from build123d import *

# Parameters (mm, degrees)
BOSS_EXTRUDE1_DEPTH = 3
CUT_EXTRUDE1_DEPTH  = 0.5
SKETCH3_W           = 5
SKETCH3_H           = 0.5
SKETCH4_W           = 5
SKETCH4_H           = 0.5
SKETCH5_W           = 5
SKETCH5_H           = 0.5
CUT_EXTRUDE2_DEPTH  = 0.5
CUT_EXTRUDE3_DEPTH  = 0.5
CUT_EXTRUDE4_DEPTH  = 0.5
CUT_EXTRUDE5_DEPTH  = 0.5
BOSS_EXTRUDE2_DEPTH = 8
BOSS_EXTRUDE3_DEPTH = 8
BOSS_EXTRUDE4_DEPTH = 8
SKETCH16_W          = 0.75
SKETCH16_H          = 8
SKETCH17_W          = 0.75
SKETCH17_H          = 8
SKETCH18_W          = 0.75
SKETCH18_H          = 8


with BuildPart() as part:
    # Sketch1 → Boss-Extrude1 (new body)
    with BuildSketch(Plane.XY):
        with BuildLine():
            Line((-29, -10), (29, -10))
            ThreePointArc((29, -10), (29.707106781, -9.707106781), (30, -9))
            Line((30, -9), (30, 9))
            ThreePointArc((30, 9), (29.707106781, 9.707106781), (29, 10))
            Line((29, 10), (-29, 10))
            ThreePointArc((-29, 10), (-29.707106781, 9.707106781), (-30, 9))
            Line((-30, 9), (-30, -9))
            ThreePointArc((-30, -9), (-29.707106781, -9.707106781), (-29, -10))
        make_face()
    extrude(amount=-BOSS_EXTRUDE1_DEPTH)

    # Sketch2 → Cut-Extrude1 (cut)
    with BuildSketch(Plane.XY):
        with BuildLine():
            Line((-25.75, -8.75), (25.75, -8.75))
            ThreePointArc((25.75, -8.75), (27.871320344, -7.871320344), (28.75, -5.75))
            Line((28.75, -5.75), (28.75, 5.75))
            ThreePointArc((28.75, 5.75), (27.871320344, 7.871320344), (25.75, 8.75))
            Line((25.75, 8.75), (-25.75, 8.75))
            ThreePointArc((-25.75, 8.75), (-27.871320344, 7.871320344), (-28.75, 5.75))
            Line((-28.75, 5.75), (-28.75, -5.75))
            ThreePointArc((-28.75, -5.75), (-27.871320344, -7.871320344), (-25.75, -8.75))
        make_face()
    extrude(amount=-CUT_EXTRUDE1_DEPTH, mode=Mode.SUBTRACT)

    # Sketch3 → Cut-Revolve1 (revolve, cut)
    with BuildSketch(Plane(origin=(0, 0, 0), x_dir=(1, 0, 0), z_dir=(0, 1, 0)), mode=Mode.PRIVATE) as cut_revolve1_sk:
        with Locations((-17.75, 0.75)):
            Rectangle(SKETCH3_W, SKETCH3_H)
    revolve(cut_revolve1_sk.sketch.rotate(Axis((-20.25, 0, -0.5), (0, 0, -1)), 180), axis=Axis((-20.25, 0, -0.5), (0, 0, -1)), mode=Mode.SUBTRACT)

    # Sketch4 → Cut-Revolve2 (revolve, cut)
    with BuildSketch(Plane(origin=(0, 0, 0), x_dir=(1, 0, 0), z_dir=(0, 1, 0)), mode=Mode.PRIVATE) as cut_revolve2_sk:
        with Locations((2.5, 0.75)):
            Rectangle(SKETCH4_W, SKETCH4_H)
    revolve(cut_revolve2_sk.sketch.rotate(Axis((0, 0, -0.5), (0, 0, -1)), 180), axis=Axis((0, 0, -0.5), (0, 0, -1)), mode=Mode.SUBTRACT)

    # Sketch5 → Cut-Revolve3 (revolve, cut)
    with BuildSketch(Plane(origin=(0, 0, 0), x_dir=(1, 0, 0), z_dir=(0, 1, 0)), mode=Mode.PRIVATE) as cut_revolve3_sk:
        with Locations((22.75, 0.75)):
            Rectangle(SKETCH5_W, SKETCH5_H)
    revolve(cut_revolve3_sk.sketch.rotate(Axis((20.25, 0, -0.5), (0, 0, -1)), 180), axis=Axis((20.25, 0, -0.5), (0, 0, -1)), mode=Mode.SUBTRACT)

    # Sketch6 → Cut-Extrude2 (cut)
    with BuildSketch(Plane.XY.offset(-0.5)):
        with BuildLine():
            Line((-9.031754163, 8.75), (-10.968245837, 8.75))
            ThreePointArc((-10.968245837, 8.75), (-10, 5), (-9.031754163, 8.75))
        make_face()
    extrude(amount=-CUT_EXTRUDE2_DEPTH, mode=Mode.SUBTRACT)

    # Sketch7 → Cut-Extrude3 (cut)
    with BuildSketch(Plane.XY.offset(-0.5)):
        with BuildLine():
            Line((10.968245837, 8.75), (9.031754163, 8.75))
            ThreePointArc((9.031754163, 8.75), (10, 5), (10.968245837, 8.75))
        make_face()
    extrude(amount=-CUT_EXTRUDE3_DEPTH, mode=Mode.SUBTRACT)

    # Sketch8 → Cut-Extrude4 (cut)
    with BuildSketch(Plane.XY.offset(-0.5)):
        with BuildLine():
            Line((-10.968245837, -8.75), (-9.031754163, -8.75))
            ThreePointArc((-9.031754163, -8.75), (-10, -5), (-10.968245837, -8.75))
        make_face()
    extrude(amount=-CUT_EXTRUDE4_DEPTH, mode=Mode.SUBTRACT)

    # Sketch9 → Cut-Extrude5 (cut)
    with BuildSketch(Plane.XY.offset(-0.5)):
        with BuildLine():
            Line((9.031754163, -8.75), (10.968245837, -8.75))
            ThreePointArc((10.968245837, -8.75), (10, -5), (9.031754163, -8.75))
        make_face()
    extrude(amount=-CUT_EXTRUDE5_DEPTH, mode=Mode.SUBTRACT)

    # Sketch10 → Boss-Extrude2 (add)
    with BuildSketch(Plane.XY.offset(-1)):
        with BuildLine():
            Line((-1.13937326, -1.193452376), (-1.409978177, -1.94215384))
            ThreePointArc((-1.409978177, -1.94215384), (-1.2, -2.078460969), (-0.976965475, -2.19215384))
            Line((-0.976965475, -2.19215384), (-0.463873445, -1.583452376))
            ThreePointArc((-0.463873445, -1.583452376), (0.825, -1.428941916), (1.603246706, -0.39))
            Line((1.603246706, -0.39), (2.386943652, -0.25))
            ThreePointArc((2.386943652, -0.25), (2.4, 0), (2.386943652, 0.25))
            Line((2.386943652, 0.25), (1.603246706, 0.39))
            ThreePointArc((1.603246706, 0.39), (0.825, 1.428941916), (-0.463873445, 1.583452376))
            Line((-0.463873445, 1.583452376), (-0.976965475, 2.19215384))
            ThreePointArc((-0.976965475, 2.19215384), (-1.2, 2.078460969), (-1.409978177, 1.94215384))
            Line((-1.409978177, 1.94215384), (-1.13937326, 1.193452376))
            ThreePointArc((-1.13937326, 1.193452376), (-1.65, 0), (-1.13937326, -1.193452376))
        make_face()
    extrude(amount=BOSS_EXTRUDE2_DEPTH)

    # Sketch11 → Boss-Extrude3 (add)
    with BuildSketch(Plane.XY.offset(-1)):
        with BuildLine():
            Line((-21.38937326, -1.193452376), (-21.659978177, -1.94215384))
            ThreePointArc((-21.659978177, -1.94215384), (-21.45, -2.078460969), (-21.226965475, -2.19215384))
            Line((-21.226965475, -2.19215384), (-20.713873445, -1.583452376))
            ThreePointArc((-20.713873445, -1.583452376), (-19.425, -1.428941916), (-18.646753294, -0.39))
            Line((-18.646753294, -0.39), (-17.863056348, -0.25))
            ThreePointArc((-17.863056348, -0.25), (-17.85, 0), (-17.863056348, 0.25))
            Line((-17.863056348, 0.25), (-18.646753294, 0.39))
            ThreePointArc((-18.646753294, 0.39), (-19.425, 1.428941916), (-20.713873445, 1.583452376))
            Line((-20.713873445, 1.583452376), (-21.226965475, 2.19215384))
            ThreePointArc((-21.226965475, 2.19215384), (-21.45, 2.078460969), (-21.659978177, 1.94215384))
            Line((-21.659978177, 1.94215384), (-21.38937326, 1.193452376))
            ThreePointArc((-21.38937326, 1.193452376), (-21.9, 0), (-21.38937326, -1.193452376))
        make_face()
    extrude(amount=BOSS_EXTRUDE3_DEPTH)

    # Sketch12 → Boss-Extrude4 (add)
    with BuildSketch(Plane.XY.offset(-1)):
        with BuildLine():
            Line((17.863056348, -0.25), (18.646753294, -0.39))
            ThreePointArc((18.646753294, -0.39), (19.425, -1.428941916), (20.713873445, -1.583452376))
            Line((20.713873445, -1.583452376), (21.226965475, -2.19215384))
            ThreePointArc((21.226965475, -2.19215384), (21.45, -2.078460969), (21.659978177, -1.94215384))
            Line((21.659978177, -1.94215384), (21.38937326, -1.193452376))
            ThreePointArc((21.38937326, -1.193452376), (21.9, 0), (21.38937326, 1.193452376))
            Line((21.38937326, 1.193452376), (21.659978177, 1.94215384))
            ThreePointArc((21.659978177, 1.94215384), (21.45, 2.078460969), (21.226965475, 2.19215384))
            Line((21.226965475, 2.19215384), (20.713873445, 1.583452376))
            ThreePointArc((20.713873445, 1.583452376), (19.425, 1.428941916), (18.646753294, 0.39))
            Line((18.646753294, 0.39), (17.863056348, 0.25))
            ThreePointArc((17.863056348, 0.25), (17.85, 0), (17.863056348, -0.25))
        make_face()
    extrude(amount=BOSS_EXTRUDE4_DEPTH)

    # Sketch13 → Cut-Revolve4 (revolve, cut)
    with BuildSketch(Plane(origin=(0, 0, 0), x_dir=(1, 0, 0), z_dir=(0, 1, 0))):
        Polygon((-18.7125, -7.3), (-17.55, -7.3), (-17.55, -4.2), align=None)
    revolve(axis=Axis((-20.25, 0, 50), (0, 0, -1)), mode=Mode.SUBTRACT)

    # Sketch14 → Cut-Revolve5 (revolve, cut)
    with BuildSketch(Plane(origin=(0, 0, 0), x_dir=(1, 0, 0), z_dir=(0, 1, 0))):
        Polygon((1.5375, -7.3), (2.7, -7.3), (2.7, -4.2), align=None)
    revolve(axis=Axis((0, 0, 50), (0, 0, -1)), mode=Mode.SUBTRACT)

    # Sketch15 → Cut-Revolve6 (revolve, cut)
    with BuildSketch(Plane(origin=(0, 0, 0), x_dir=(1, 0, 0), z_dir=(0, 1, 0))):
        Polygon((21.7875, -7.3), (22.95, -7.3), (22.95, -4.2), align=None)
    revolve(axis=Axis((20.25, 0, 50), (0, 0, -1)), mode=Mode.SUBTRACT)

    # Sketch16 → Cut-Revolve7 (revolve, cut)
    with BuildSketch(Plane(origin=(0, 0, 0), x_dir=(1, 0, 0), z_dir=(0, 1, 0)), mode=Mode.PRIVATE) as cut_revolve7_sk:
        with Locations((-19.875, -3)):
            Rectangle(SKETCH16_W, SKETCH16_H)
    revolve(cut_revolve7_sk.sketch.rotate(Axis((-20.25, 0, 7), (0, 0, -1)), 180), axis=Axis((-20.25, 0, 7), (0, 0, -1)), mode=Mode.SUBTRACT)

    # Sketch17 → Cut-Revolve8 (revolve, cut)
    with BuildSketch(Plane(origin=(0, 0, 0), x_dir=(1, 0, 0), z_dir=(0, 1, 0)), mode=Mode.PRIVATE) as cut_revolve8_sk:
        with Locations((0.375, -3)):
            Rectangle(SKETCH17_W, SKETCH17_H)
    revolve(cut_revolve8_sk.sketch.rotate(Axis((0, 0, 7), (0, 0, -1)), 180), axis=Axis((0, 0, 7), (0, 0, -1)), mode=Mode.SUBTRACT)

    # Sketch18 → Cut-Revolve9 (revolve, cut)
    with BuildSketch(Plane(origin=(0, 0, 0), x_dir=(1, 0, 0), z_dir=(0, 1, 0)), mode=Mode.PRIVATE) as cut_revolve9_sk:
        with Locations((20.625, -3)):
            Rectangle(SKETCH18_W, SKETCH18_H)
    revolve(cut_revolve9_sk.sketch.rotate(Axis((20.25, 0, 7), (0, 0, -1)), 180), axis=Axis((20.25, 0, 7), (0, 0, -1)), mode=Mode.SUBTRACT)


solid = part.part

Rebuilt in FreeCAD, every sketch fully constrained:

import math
import FreeCAD as App
import Part
import Sketcher


def add_polygon(sketch, points):
    """Adds a closed chain of lines whose ends are joined by coincident constraints."""
    first, n = sketch.GeometryCount, len(points)
    for a, b in zip(points, points[1:] + points[:1]):
        sketch.addGeometry(Part.LineSegment(App.Vector(*a, 0), App.Vector(*b, 0)), False)
    for i in range(n):
        sketch.addConstraint(Sketcher.Constraint("Coincident", first + i, 2, first + (i + 1) % n, 1))

doc = App.newDocument("Part")
params = doc.addObject("Spreadsheet::Sheet", "Params")
for row, (alias, value) in enumerate([
    ("sketch1_radius", "1 mm"),
    ("sketch1_width", "58 mm"),
    ("sketch1_height", "18 mm"),
    ("pad1_length", "3 mm"),
    ("sketch2_radius", "3 mm"),
    ("sketch2_width", "51.5 mm"),
    ("sketch2_height", "11.5 mm"),
    ("pocket1_length", "0.5 mm"),
    ("sketch3_width", "5 mm"),
    ("sketch3_height", "0.5 mm"),
    ("groove_angle", "360 deg"),
    ("sketch4_width", "5 mm"),
    ("sketch4_height", "0.5 mm"),
    ("groove2_angle", "360 deg"),
    ("sketch5_width", "5 mm"),
    ("sketch5_height", "0.5 mm"),
    ("groove3_angle", "360 deg"),
    ("sketch6_radius", "2 mm"),
    ("pocket2_length", "0.5 mm"),
    ("sketch7_radius", "2 mm"),
    ("pocket3_length", "0.5 mm"),
    ("sketch8_radius", "2 mm"),
    ("pocket4_length", "0.5 mm"),
    ("sketch9_radius", "2 mm"),
    ("pocket5_length", "0.5 mm"),
    ("sketch10_radius", "2.4 mm"),
    ("sketch10_radius2", "1.65 mm"),
    ("pad2_length", "8 mm"),
    ("sketch11_radius", "2.4 mm"),
    ("sketch11_radius2", "1.65 mm"),
    ("pad3_length", "8 mm"),
    ("sketch12_radius", "2.4 mm"),
    ("sketch12_radius2", "1.65 mm"),
    ("pad4_length", "8 mm"),
    ("sketch13_height", "3.1 mm"),
    ("groove4_angle", "360 deg"),
    ("sketch14_height", "3.1 mm"),
    ("groove5_angle", "360 deg"),
    ("sketch15_height", "3.1 mm"),
    ("groove6_angle", "360 deg"),
    ("sketch16_height", "8 mm"),
    ("sketch16_width", "0.75 mm"),
    ("groove7_angle", "360 deg"),
    ("sketch17_height", "8 mm"),
    ("sketch17_width", "0.75 mm"),
    ("groove8_angle", "360 deg"),
    ("sketch18_height", "8 mm"),
    ("sketch18_width", "0.75 mm"),
    ("groove9_angle", "360 deg"),
], start=1):
    params.set(f"A{row}", alias)
    params.set(f"B{row}", "=" + value)
    params.setAlias(f"B{row}", alias)

body = doc.addObject("PartDesign::Body", "Body")

# Sketch on XY plane
sketch1 = body.newObject("Sketcher::SketchObject", "Sketch")
sketch1.AttachmentSupport = (doc.getObject("XY_Plane"), [""])
sketch1.MapMode = "FlatFace"
sketch1.addGeometry([
    Part.LineSegment(App.Vector(-29, -10, 0), App.Vector(29, -10, 0)),  # 0
    Part.ArcOfCircle(Part.Circle(App.Vector(29, -9, 0), App.Vector(0, 0, 1), 1), math.radians(-90), math.radians(0)),  # 1
    Part.LineSegment(App.Vector(30, -9, 0), App.Vector(30, 9, 0)),  # 2
    Part.ArcOfCircle(Part.Circle(App.Vector(29, 9, 0), App.Vector(0, 0, 1), 1), math.radians(0), math.radians(90)),  # 3
    Part.LineSegment(App.Vector(29, 10, 0), App.Vector(-29, 10, 0)),  # 4
    Part.ArcOfCircle(Part.Circle(App.Vector(-29, 9, 0), App.Vector(0, 0, 1), 1), math.radians(90), math.radians(180)),  # 5
    Part.LineSegment(App.Vector(-30, 9, 0), App.Vector(-30, -9, 0)),  # 6
    Part.ArcOfCircle(Part.Circle(App.Vector(-29, -9, 0), App.Vector(0, 0, 1), 1), math.radians(-180), math.radians(-90)),  # 7
], False)
sketch1.addConstraint([
    Sketcher.Constraint("Tangent", 0, 2, 1, 1),
    Sketcher.Constraint("Tangent", 1, 2, 2, 1),
    Sketcher.Constraint("Tangent", 2, 2, 3, 1),
    Sketcher.Constraint("Tangent", 3, 2, 4, 1),
    Sketcher.Constraint("Tangent", 4, 2, 5, 1),
    Sketcher.Constraint("Tangent", 5, 2, 6, 1),
    Sketcher.Constraint("Tangent", 6, 2, 7, 1),
    Sketcher.Constraint("Tangent", 7, 2, 0, 1),
    Sketcher.Constraint("Horizontal", 0),
    Sketcher.Constraint("Vertical", 2),
    Sketcher.Constraint("Horizontal", 4),
    Sketcher.Constraint("Vertical", 6),
    Sketcher.Constraint("Equal", 1, 3),
    Sketcher.Constraint("Equal", 3, 5),
    Sketcher.Constraint("Equal", 5, 7),
    Sketcher.Constraint("Symmetric", 1, 3, 5, 3, -1, 1),
    Sketcher.Constraint("Radius", 1, 1.0),
    Sketcher.Constraint("DistanceX", 0, 1, 0, 2, 58.0),
    Sketcher.Constraint("DistanceY", 2, 1, 2, 2, 18.0),
])
sketch1.setExpression("Constraints[16]", "Params.sketch1_radius")
sketch1.setExpression("Constraints[17]", "Params.sketch1_width")
sketch1.setExpression("Constraints[18]", "Params.sketch1_height")
pad1 = body.newObject("PartDesign::Pad", "Pad")
pad1.Profile = sketch1
pad1.setExpression("Length", "Params.pad1_length")
pad1.Reversed = True

# Sketch on XY plane
sketch2 = body.newObject("Sketcher::SketchObject", "Sketch001")
sketch2.AttachmentSupport = (doc.getObject("XY_Plane"), [""])
sketch2.MapMode = "FlatFace"
sketch2.addGeometry([
    Part.LineSegment(App.Vector(-25.75, -8.75, 0), App.Vector(25.75, -8.75, 0)),  # 0
    Part.ArcOfCircle(Part.Circle(App.Vector(25.75, -5.75, 0), App.Vector(0, 0, 1), 3), math.radians(-90), math.radians(0)),  # 1
    Part.LineSegment(App.Vector(28.75, -5.75, 0), App.Vector(28.75, 5.75, 0)),  # 2
    Part.ArcOfCircle(Part.Circle(App.Vector(25.75, 5.75, 0), App.Vector(0, 0, 1), 3), math.radians(0), math.radians(90)),  # 3
    Part.LineSegment(App.Vector(25.75, 8.75, 0), App.Vector(-25.75, 8.75, 0)),  # 4
    Part.ArcOfCircle(Part.Circle(App.Vector(-25.75, 5.75, 0), App.Vector(0, 0, 1), 3), math.radians(90), math.radians(180)),  # 5
    Part.LineSegment(App.Vector(-28.75, 5.75, 0), App.Vector(-28.75, -5.75, 0)),  # 6
    Part.ArcOfCircle(Part.Circle(App.Vector(-25.75, -5.75, 0), App.Vector(0, 0, 1), 3), math.radians(180), math.radians(270)),  # 7
], False)
sketch2.addConstraint([
    Sketcher.Constraint("Tangent", 0, 2, 1, 1),
    Sketcher.Constraint("Tangent", 1, 2, 2, 1),
    Sketcher.Constraint("Tangent", 2, 2, 3, 1),
    Sketcher.Constraint("Tangent", 3, 2, 4, 1),
    Sketcher.Constraint("Tangent", 4, 2, 5, 1),
    Sketcher.Constraint("Tangent", 5, 2, 6, 1),
    Sketcher.Constraint("Tangent", 6, 2, 7, 1),
    Sketcher.Constraint("Tangent", 7, 2, 0, 1),
    Sketcher.Constraint("Horizontal", 0),
    Sketcher.Constraint("Vertical", 2),
    Sketcher.Constraint("Horizontal", 4),
    Sketcher.Constraint("Vertical", 6),
    Sketcher.Constraint("Equal", 1, 3),
    Sketcher.Constraint("Equal", 3, 5),
    Sketcher.Constraint("Equal", 5, 7),
    Sketcher.Constraint("Symmetric", 1, 3, 5, 3, -1, 1),
    Sketcher.Constraint("Radius", 1, 3.0),
    Sketcher.Constraint("DistanceX", 0, 1, 0, 2, 51.5),
    Sketcher.Constraint("DistanceY", 2, 1, 2, 2, 11.5),
])
sketch2.setExpression("Constraints[16]", "Params.sketch2_radius")
sketch2.setExpression("Constraints[17]", "Params.sketch2_width")
sketch2.setExpression("Constraints[18]", "Params.sketch2_height")
pocket1 = body.newObject("PartDesign::Pocket", "Pocket")
pocket1.Profile = sketch2
pocket1.setExpression("Length", "Params.pocket1_length")

# Sketch on XZ plane
sketch3 = body.newObject("Sketcher::SketchObject", "Sketch002")
sketch3.AttachmentSupport = (doc.getObject("XZ_Plane"), [""])
sketch3.MapMode = "FlatFace"
add_polygon(sketch3, [(-20.25, -1), (-20.25, -0.5), (-15.25, -0.5), (-15.25, -1)])  # lines 0-3
sketch3.addGeometry(Part.LineSegment(App.Vector(-20.25, -0.5, 0), App.Vector(-20.25, -1, 0)), True)  # axis
sketch3.addConstraint([
    Sketcher.Constraint("Vertical", 0),
    Sketcher.Constraint("Horizontal", 1),
    Sketcher.Constraint("Vertical", 2),
    Sketcher.Constraint("Horizontal", 3),
    Sketcher.Constraint("Vertical", 4),
    Sketcher.Constraint("Coincident", 4, 1, 0, 2),
    Sketcher.Constraint("Horizontal", 2, 2, 4, 2),
    Sketcher.Constraint("DistanceX", 1, 1, 1, 2, 5.0),
    Sketcher.Constraint("DistanceY", 0, 1, 0, 2, 0.5),
    Sketcher.Constraint("DistanceY", 2, 2, -1, 1, 1.0),
    Sketcher.Constraint("DistanceX", 0, 2, -1, 1, 20.25),
])
sketch3.setExpression("Constraints[11]", "Params.sketch3_width")
sketch3.setExpression("Constraints[12]", "Params.sketch3_height")
groove = body.newObject("PartDesign::Groove", "Groove")
groove.Profile = sketch3
groove.ReferenceAxis = (sketch3, ["Axis0"])
groove.setExpression("Angle", "Params.groove_angle")

# Sketch on XZ plane
sketch4 = body.newObject("Sketcher::SketchObject", "Sketch003")
sketch4.AttachmentSupport = (doc.getObject("XZ_Plane"), [""])
sketch4.MapMode = "FlatFace"
add_polygon(sketch4, [(0, -1), (0, -0.5), (5, -0.5), (5, -1)])  # lines 0-3
sketch4.addConstraint([
    Sketcher.Constraint("Vertical", 0),
    Sketcher.Constraint("Horizontal", 1),
    Sketcher.Constraint("Vertical", 2),
    Sketcher.Constraint("Horizontal", 3),
    Sketcher.Constraint("PointOnObject", 0, 2, -2),
    Sketcher.Constraint("DistanceX", 1, 1, 1, 2, 5.0),
    Sketcher.Constraint("DistanceY", 0, 1, 0, 2, 0.5),
    Sketcher.Constraint("DistanceY", 2, 2, -1, 1, 1.0),
])
sketch4.setExpression("Constraints[9]", "Params.sketch4_width")
sketch4.setExpression("Constraints[10]", "Params.sketch4_height")
groove2 = body.newObject("PartDesign::Groove", "Groove001")
groove2.Profile = sketch4
groove2.ReferenceAxis = (sketch4, ["V_Axis"])
groove2.setExpression("Angle", "Params.groove2_angle")

# Sketch on XZ plane
sketch5 = body.newObject("Sketcher::SketchObject", "Sketch004")
sketch5.AttachmentSupport = (doc.getObject("XZ_Plane"), [""])
sketch5.MapMode = "FlatFace"
add_polygon(sketch5, [(20.25, -1), (20.25, -0.5), (25.25, -0.5), (25.25, -1)])  # lines 0-3
sketch5.addGeometry(Part.LineSegment(App.Vector(20.25, -0.5, 0), App.Vector(20.25, -1, 0)), True)  # axis
sketch5.addConstraint([
    Sketcher.Constraint("Vertical", 0),
    Sketcher.Constraint("Horizontal", 1),
    Sketcher.Constraint("Vertical", 2),
    Sketcher.Constraint("Horizontal", 3),
    Sketcher.Constraint("Vertical", 4),
    Sketcher.Constraint("Coincident", 4, 1, 0, 2),
    Sketcher.Constraint("Horizontal", 2, 2, 4, 2),
    Sketcher.Constraint("DistanceX", 1, 1, 1, 2, 5.0),
    Sketcher.Constraint("DistanceY", 0, 1, 0, 2, 0.5),
    Sketcher.Constraint("DistanceY", 2, 2, -1, 1, 1.0),
    Sketcher.Constraint("DistanceX", -1, 1, 0, 2, 20.25),
])
sketch5.setExpression("Constraints[11]", "Params.sketch5_width")
sketch5.setExpression("Constraints[12]", "Params.sketch5_height")
groove3 = body.newObject("PartDesign::Groove", "Groove002")
groove3.Profile = sketch5
groove3.ReferenceAxis = (sketch5, ["Axis0"])
groove3.setExpression("Angle", "Params.groove3_angle")

# Sketch on XY plane
sketch6 = body.newObject("Sketcher::SketchObject", "Sketch005")
sketch6.AttachmentSupport = (doc.getObject("XY_Plane"), [""])
sketch6.MapMode = "FlatFace"
sketch6.AttachmentOffset = App.Placement(App.Vector(0, 0, -0.5), App.Rotation())
sketch6.addGeometry([
    Part.LineSegment(App.Vector(-9.031754, 8.75, 0), App.Vector(-10.968246, 8.75, 0)),
    Part.ArcOfCircle(Part.Circle(App.Vector(-10, 7, 0), App.Vector(0, 0, 1), 2), math.radians(118.955024), math.radians(421.044976)),
], False)
sketch6.addConstraint([
    Sketcher.Constraint("Coincident", 0, 1, 1, 2),
    Sketcher.Constraint("Coincident", 1, 1, 0, 2),
    Sketcher.Constraint("Horizontal", 0),
    Sketcher.Constraint("Radius", 1, 2.0),
    Sketcher.Constraint("DistanceX", 1, 3, -1, 1, 10.0),
    Sketcher.Constraint("DistanceY", -1, 1, 1, 3, 7.0),
    Sketcher.Constraint("DistanceY", -1, 1, 0, 1, 8.75),
])
sketch6.setExpression("Constraints[3]", "Params.sketch6_radius")
pocket2 = body.newObject("PartDesign::Pocket", "Pocket001")
pocket2.Profile = sketch6
pocket2.setExpression("Length", "Params.pocket2_length")

# Sketch on XY plane
sketch7 = body.newObject("Sketcher::SketchObject", "Sketch006")
sketch7.AttachmentSupport = (doc.getObject("XY_Plane"), [""])
sketch7.MapMode = "FlatFace"
sketch7.AttachmentOffset = App.Placement(App.Vector(0, 0, -0.5), App.Rotation())
sketch7.addGeometry([
    Part.LineSegment(App.Vector(10.968246, 8.75, 0), App.Vector(9.031754, 8.75, 0)),
    Part.ArcOfCircle(Part.Circle(App.Vector(10, 7, 0), App.Vector(0, 0, 1), 2), math.radians(118.955024), math.radians(421.044976)),
], False)
sketch7.addConstraint([
    Sketcher.Constraint("Coincident", 0, 1, 1, 2),
    Sketcher.Constraint("Coincident", 1, 1, 0, 2),
    Sketcher.Constraint("Horizontal", 0),
    Sketcher.Constraint("Radius", 1, 2.0),
    Sketcher.Constraint("DistanceX", -1, 1, 1, 3, 10.0),
    Sketcher.Constraint("DistanceY", -1, 1, 1, 3, 7.0),
    Sketcher.Constraint("DistanceY", -1, 1, 0, 1, 8.75),
])
sketch7.setExpression("Constraints[3]", "Params.sketch7_radius")
pocket3 = body.newObject("PartDesign::Pocket", "Pocket002")
pocket3.Profile = sketch7
pocket3.setExpression("Length", "Params.pocket3_length")

# Sketch on XY plane
sketch8 = body.newObject("Sketcher::SketchObject", "Sketch007")
sketch8.AttachmentSupport = (doc.getObject("XY_Plane"), [""])
sketch8.MapMode = "FlatFace"
sketch8.AttachmentOffset = App.Placement(App.Vector(0, 0, -0.5), App.Rotation())
sketch8.addGeometry([
    Part.LineSegment(App.Vector(-10.968246, -8.75, 0), App.Vector(-9.031754, -8.75, 0)),
    Part.ArcOfCircle(Part.Circle(App.Vector(-10, -7, 0), App.Vector(0, 0, 1), 2), math.radians(-61.044976), math.radians(241.044976)),
], False)
sketch8.addConstraint([
    Sketcher.Constraint("Coincident", 0, 1, 1, 2),
    Sketcher.Constraint("Coincident", 1, 1, 0, 2),
    Sketcher.Constraint("Horizontal", 0),
    Sketcher.Constraint("Radius", 1, 2.0),
    Sketcher.Constraint("DistanceX", 1, 3, -1, 1, 10.0),
    Sketcher.Constraint("DistanceY", 1, 3, -1, 1, 7.0),
    Sketcher.Constraint("DistanceY", 0, 1, -1, 1, 8.75),
])
sketch8.setExpression("Constraints[3]", "Params.sketch8_radius")
pocket4 = body.newObject("PartDesign::Pocket", "Pocket003")
pocket4.Profile = sketch8
pocket4.setExpression("Length", "Params.pocket4_length")

# Sketch on XY plane
sketch9 = body.newObject("Sketcher::SketchObject", "Sketch008")
sketch9.AttachmentSupport = (doc.getObject("XY_Plane"), [""])
sketch9.MapMode = "FlatFace"
sketch9.AttachmentOffset = App.Placement(App.Vector(0, 0, -0.5), App.Rotation())
sketch9.addGeometry([
    Part.LineSegment(App.Vector(9.031754, -8.75, 0), App.Vector(10.968246, -8.75, 0)),
    Part.ArcOfCircle(Part.Circle(App.Vector(10, -7, 0), App.Vector(0, 0, 1), 2), math.radians(-61.044976), math.radians(241.044976)),
], False)
sketch9.addConstraint([
    Sketcher.Constraint("Coincident", 0, 1, 1, 2),
    Sketcher.Constraint("Coincident", 1, 1, 0, 2),
    Sketcher.Constraint("Horizontal", 0),
    Sketcher.Constraint("Radius", 1, 2.0),
    Sketcher.Constraint("DistanceX", -1, 1, 1, 3, 10.0),
    Sketcher.Constraint("DistanceY", 1, 3, -1, 1, 7.0),
    Sketcher.Constraint("DistanceY", 0, 1, -1, 1, 8.75),
])
sketch9.setExpression("Constraints[3]", "Params.sketch9_radius")
pocket5 = body.newObject("PartDesign::Pocket", "Pocket004")
pocket5.Profile = sketch9
pocket5.setExpression("Length", "Params.pocket5_length")

# Sketch on XY plane
sketch10 = body.newObject("Sketcher::SketchObject", "Sketch009")
sketch10.AttachmentSupport = (doc.getObject("XY_Plane"), [""])
sketch10.MapMode = "FlatFace"
sketch10.AttachmentOffset = App.Placement(App.Vector(0, 0, -1), App.Rotation())
sketch10.addGeometry([
    Part.LineSegment(App.Vector(-1.139373, -1.193452, 0), App.Vector(-1.409978, -1.942154, 0)),  # 0
    Part.ArcOfCircle(Part.Circle(App.Vector(0, 0, 0), App.Vector(0, 0, 1), 2.4), math.radians(-125.979157), math.radians(-114.020843)),  # 1
    Part.LineSegment(App.Vector(-0.976965, -2.192154, 0), App.Vector(-0.463873, -1.583452, 0)),  # 2
    Part.ArcOfCircle(Part.Circle(App.Vector(0, 0, 0), App.Vector(0, 0, 1), 1.65), math.radians(-106.327982), math.radians(-13.672018)),  # 3
    Part.LineSegment(App.Vector(1.603247, -0.39, 0), App.Vector(2.386944, -0.25, 0)),  # 4
    Part.ArcOfCircle(Part.Circle(App.Vector(0, 0, 0), App.Vector(0, 0, 1), 2.4), math.radians(-5.979157), math.radians(5.979157)),  # 5
    Part.LineSegment(App.Vector(2.386944, 0.25, 0), App.Vector(1.603247, 0.39, 0)),  # 6
    Part.ArcOfCircle(Part.Circle(App.Vector(0, 0, 0), App.Vector(0, 0, 1), 1.65), math.radians(13.672018), math.radians(106.327982)),  # 7
    Part.LineSegment(App.Vector(-0.463873, 1.583452, 0), App.Vector(-0.976965, 2.192154, 0)),  # 8
    Part.ArcOfCircle(Part.Circle(App.Vector(0, 0, 0), App.Vector(0, 0, 1), 2.4), math.radians(114.020843), math.radians(125.979157)),  # 9
    Part.LineSegment(App.Vector(-1.409978, 1.942154, 0), App.Vector(-1.139373, 1.193452, 0)),  # 10
    Part.ArcOfCircle(Part.Circle(App.Vector(0, 0, 0), App.Vector(0, 0, 1), 1.65), math.radians(133.672018), math.radians(226.327982)),  # 11
], False)
sketch10.addConstraint([
    Sketcher.Constraint("Coincident", 0, 2, 1, 1),
    Sketcher.Constraint("Coincident", 1, 2, 2, 1),
    Sketcher.Constraint("Coincident", 2, 2, 3, 1),
    Sketcher.Constraint("Coincident", 3, 2, 4, 1),
    Sketcher.Constraint("Coincident", 4, 2, 5, 1),
    Sketcher.Constraint("Coincident", 5, 2, 6, 1),
    Sketcher.Constraint("Coincident", 6, 2, 7, 1),
    Sketcher.Constraint("Coincident", 7, 2, 8, 1),
    Sketcher.Constraint("Coincident", 8, 2, 9, 1),
    Sketcher.Constraint("Coincident", 9, 2, 10, 1),
    Sketcher.Constraint("Coincident", 10, 2, 11, 1),
    Sketcher.Constraint("Coincident", 11, 2, 0, 1),
    Sketcher.Constraint("Coincident", 1, 3, -1, 1),
    Sketcher.Constraint("Coincident", 3, 3, -1, 1),
    Sketcher.Constraint("Coincident", 5, 3, -1, 1),
    Sketcher.Constraint("Coincident", 7, 3, -1, 1),
    Sketcher.Constraint("Coincident", 9, 3, -1, 1),
    Sketcher.Constraint("Coincident", 11, 3, -1, 1),
    Sketcher.Constraint("Equal", 1, 5),
    Sketcher.Constraint("Equal", 3, 7),
    Sketcher.Constraint("Equal", 5, 9),
    Sketcher.Constraint("Equal", 7, 11),
    Sketcher.Constraint("Vertical", 4, 2, 5, 2),
    Sketcher.Constraint("Vertical", 3, 2, 6, 2),
    Sketcher.Constraint("Vertical", 2, 2, 7, 2),
    Sketcher.Constraint("Vertical", 1, 2, 8, 2),
    Sketcher.Constraint("Vertical", 0, 2, 9, 2),
    Sketcher.Constraint("Vertical", 10, 2, 11, 2),
    Sketcher.Constraint("Equal", 0, 2),
    Sketcher.Constraint("Equal", 2, 4),
    Sketcher.Constraint("Radius", 1, 2.4),
    Sketcher.Constraint("Radius", 3, 1.65),
    Sketcher.Constraint("DistanceY", 4, 2, 5, 2, 0.5),
    Sketcher.Constraint("DistanceY", 3, 2, -1, 1, 0.39),
    Sketcher.Constraint("DistanceY", 1, 2, 0, 2, 0.25),
    Sketcher.Constraint("DistanceY", 10, 2, 7, 2, 0.39),
])
sketch10.setExpression("Constraints[30]", "Params.sketch10_radius")
sketch10.setExpression("Constraints[31]", "Params.sketch10_radius2")
pad2 = body.newObject("PartDesign::Pad", "Pad001")
pad2.Profile = sketch10
pad2.setExpression("Length", "Params.pad2_length")

# Sketch on XY plane
sketch11 = body.newObject("Sketcher::SketchObject", "Sketch010")
sketch11.AttachmentSupport = (doc.getObject("XY_Plane"), [""])
sketch11.MapMode = "FlatFace"
sketch11.AttachmentOffset = App.Placement(App.Vector(0, 0, -1), App.Rotation())
sketch11.addGeometry([
    Part.LineSegment(App.Vector(-21.389373, -1.193452, 0), App.Vector(-21.659978, -1.942154, 0)),  # 0
    Part.ArcOfCircle(Part.Circle(App.Vector(-20.25, 0, 0), App.Vector(0, 0, 1), 2.4), math.radians(-125.979157), math.radians(-114.020843)),  # 1
    Part.LineSegment(App.Vector(-21.226965, -2.192154, 0), App.Vector(-20.713873, -1.583452, 0)),  # 2
    Part.ArcOfCircle(Part.Circle(App.Vector(-20.25, 0, 0), App.Vector(0, 0, 1), 1.65), math.radians(-106.327982), math.radians(-13.672018)),  # 3
    Part.LineSegment(App.Vector(-18.646753, -0.39, 0), App.Vector(-17.863056, -0.25, 0)),  # 4
    Part.ArcOfCircle(Part.Circle(App.Vector(-20.25, 0, 0), App.Vector(0, 0, 1), 2.4), math.radians(-5.979157), math.radians(5.979157)),  # 5
    Part.LineSegment(App.Vector(-17.863056, 0.25, 0), App.Vector(-18.646753, 0.39, 0)),  # 6
    Part.ArcOfCircle(Part.Circle(App.Vector(-20.25, 0, 0), App.Vector(0, 0, 1), 1.65), math.radians(13.672018), math.radians(106.327982)),  # 7
    Part.LineSegment(App.Vector(-20.713873, 1.583452, 0), App.Vector(-21.226965, 2.192154, 0)),  # 8
    Part.ArcOfCircle(Part.Circle(App.Vector(-20.25, 0, 0), App.Vector(0, 0, 1), 2.4), math.radians(114.020843), math.radians(125.979157)),  # 9
    Part.LineSegment(App.Vector(-21.659978, 1.942154, 0), App.Vector(-21.389373, 1.193452, 0)),  # 10
    Part.ArcOfCircle(Part.Circle(App.Vector(-20.25, 0, 0), App.Vector(0, 0, 1), 1.65), math.radians(133.672018), math.radians(226.327982)),  # 11
], False)
sketch11.addConstraint([
    Sketcher.Constraint("Coincident", 0, 2, 1, 1),
    Sketcher.Constraint("Coincident", 1, 2, 2, 1),
    Sketcher.Constraint("Coincident", 2, 2, 3, 1),
    Sketcher.Constraint("Coincident", 3, 2, 4, 1),
    Sketcher.Constraint("Coincident", 4, 2, 5, 1),
    Sketcher.Constraint("Coincident", 5, 2, 6, 1),
    Sketcher.Constraint("Coincident", 6, 2, 7, 1),
    Sketcher.Constraint("Coincident", 7, 2, 8, 1),
    Sketcher.Constraint("Coincident", 8, 2, 9, 1),
    Sketcher.Constraint("Coincident", 9, 2, 10, 1),
    Sketcher.Constraint("Coincident", 10, 2, 11, 1),
    Sketcher.Constraint("Coincident", 11, 2, 0, 1),
    Sketcher.Constraint("Coincident", 3, 3, 1, 3),
    Sketcher.Constraint("Coincident", 5, 3, 1, 3),
    Sketcher.Constraint("Coincident", 7, 3, 1, 3),
    Sketcher.Constraint("Coincident", 9, 3, 1, 3),
    Sketcher.Constraint("Coincident", 11, 3, 1, 3),
    Sketcher.Constraint("Equal", 1, 5),
    Sketcher.Constraint("Equal", 3, 7),
    Sketcher.Constraint("Equal", 5, 9),
    Sketcher.Constraint("Equal", 7, 11),
    Sketcher.Constraint("Symmetric", 4, 2, 5, 2, -1),
    Sketcher.Constraint("Vertical", 3, 2, 6, 2),
    Sketcher.Constraint("Vertical", 2, 2, 7, 2),
    Sketcher.Constraint("Vertical", 1, 2, 8, 2),
    Sketcher.Constraint("Vertical", 0, 2, 9, 2),
    Sketcher.Constraint("Vertical", 10, 2, 11, 2),
    Sketcher.Constraint("Equal", 0, 2),
    Sketcher.Constraint("Equal", 2, 4),
    Sketcher.Constraint("Radius", 1, 2.4),
    Sketcher.Constraint("Radius", 3, 1.65),
    Sketcher.Constraint("DistanceY", 4, 2, 5, 2, 0.5),
    Sketcher.Constraint("DistanceX", 1, 3, -1, 1, 20.25),
    Sketcher.Constraint("DistanceY", 3, 2, -1, 1, 0.39),
    Sketcher.Constraint("DistanceY", 1, 2, 0, 2, 0.25),
    Sketcher.Constraint("DistanceY", 10, 2, 7, 2, 0.39),
])
sketch11.setExpression("Constraints[29]", "Params.sketch11_radius")
sketch11.setExpression("Constraints[30]", "Params.sketch11_radius2")
pad3 = body.newObject("PartDesign::Pad", "Pad002")
pad3.Profile = sketch11
pad3.setExpression("Length", "Params.pad3_length")

# Sketch on XY plane
sketch12 = body.newObject("Sketcher::SketchObject", "Sketch011")
sketch12.AttachmentSupport = (doc.getObject("XY_Plane"), [""])
sketch12.MapMode = "FlatFace"
sketch12.AttachmentOffset = App.Placement(App.Vector(0, 0, -1), App.Rotation())
sketch12.addGeometry([
    Part.LineSegment(App.Vector(17.863056, -0.25, 0), App.Vector(18.646753, -0.39, 0)),  # 0
    Part.ArcOfCircle(Part.Circle(App.Vector(20.25, 0, 0), App.Vector(0, 0, 1), 1.65), math.radians(-166.327982), math.radians(-73.672018)),  # 1
    Part.LineSegment(App.Vector(20.713873, -1.583452, 0), App.Vector(21.226965, -2.192154, 0)),  # 2
    Part.ArcOfCircle(Part.Circle(App.Vector(20.25, 0, 0), App.Vector(0, 0, 1), 2.4), math.radians(-65.979157), math.radians(-54.020843)),  # 3
    Part.LineSegment(App.Vector(21.659978, -1.942154, 0), App.Vector(21.389373, -1.193452, 0)),  # 4
    Part.ArcOfCircle(Part.Circle(App.Vector(20.25, 0, 0), App.Vector(0, 0, 1), 1.65), math.radians(-46.327982), math.radians(46.327982)),  # 5
    Part.LineSegment(App.Vector(21.389373, 1.193452, 0), App.Vector(21.659978, 1.942154, 0)),  # 6
    Part.ArcOfCircle(Part.Circle(App.Vector(20.25, 0, 0), App.Vector(0, 0, 1), 2.4), math.radians(54.020843), math.radians(65.979157)),  # 7
    Part.LineSegment(App.Vector(21.226965, 2.192154, 0), App.Vector(20.713873, 1.583452, 0)),  # 8
    Part.ArcOfCircle(Part.Circle(App.Vector(20.25, 0, 0), App.Vector(0, 0, 1), 1.65), math.radians(73.672018), math.radians(166.327982)),  # 9
    Part.LineSegment(App.Vector(18.646753, 0.39, 0), App.Vector(17.863056, 0.25, 0)),  # 10
    Part.ArcOfCircle(Part.Circle(App.Vector(20.25, 0, 0), App.Vector(0, 0, 1), 2.4), math.radians(174.020843), math.radians(185.979157)),  # 11
], False)
sketch12.addConstraint([
    Sketcher.Constraint("Coincident", 0, 2, 1, 1),
    Sketcher.Constraint("Coincident", 1, 2, 2, 1),
    Sketcher.Constraint("Coincident", 2, 2, 3, 1),
    Sketcher.Constraint("Coincident", 3, 2, 4, 1),
    Sketcher.Constraint("Coincident", 4, 2, 5, 1),
    Sketcher.Constraint("Coincident", 5, 2, 6, 1),
    Sketcher.Constraint("Coincident", 6, 2, 7, 1),
    Sketcher.Constraint("Coincident", 7, 2, 8, 1),
    Sketcher.Constraint("Coincident", 8, 2, 9, 1),
    Sketcher.Constraint("Coincident", 9, 2, 10, 1),
    Sketcher.Constraint("Coincident", 10, 2, 11, 1),
    Sketcher.Constraint("Coincident", 11, 2, 0, 1),
    Sketcher.Constraint("Coincident", 3, 3, 1, 3),
    Sketcher.Constraint("Coincident", 5, 3, 1, 3),
    Sketcher.Constraint("Coincident", 7, 3, 1, 3),
    Sketcher.Constraint("Coincident", 9, 3, 1, 3),
    Sketcher.Constraint("Coincident", 11, 3, 1, 3),
    Sketcher.Constraint("Equal", 1, 5),
    Sketcher.Constraint("Equal", 3, 7),
    Sketcher.Constraint("Equal", 5, 9),
    Sketcher.Constraint("Equal", 7, 11),
    Sketcher.Constraint("Symmetric", 4, 2, 5, 2, -1),
    Sketcher.Constraint("Vertical", 3, 2, 6, 2),
    Sketcher.Constraint("Vertical", 2, 2, 7, 2),
    Sketcher.Constraint("Vertical", 1, 2, 8, 2),
    Sketcher.Constraint("Vertical", 0, 2, 9, 2),
    Sketcher.Constraint("Vertical", 10, 2, 11, 2),
    Sketcher.Constraint("Equal", 0, 2),
    Sketcher.Constraint("Equal", 2, 4),
    Sketcher.Constraint("Radius", 3, 2.4),
    Sketcher.Constraint("Radius", 1, 1.65),
    Sketcher.Constraint("DistanceY", 11, 2, 10, 2, 0.5),
    Sketcher.Constraint("DistanceX", -1, 1, 1, 3, 20.25),
    Sketcher.Constraint("DistanceY", 0, 2, -1, 1, 0.39),
    Sketcher.Constraint("DistanceY", 2, 2, 3, 2, 0.25),
    Sketcher.Constraint("DistanceY", 1, 2, 4, 2, 0.39),
])
sketch12.setExpression("Constraints[29]", "Params.sketch12_radius")
sketch12.setExpression("Constraints[30]", "Params.sketch12_radius2")
pad4 = body.newObject("PartDesign::Pad", "Pad003")
pad4.Profile = sketch12
pad4.setExpression("Length", "Params.pad4_length")

# Sketch on XZ plane
sketch13 = body.newObject("Sketcher::SketchObject", "Sketch012")
sketch13.AttachmentSupport = (doc.getObject("XZ_Plane"), [""])
sketch13.MapMode = "FlatFace"
add_polygon(sketch13, [(-18.7125, 7.3), (-17.55, 7.3), (-17.55, 4.2)])  # lines 0-2
sketch13.addGeometry(Part.LineSegment(App.Vector(-20.25, 7.3, 0), App.Vector(-20.25, 4.2, 0)), True)  # axis
sketch13.addConstraint([
    Sketcher.Constraint("Horizontal", 0),
    Sketcher.Constraint("Vertical", 1),
    Sketcher.Constraint("Vertical", 3),
    Sketcher.Constraint("Horizontal", 2, 2, 3, 1),
    Sketcher.Constraint("Horizontal", 1, 2, 3, 2),
    Sketcher.Constraint("DistanceY", 1, 2, 1, 1, 3.1),
    Sketcher.Constraint("DistanceY", -1, 1, 0, 2, 7.3),
    Sketcher.Constraint("DistanceX", 3, 1, 0, 2, 2.7),
    Sketcher.Constraint("DistanceX", 0, 2, -1, 1, 17.55),
    Sketcher.Constraint("DistanceX", 0, 1, 0, 2, 1.1625),
])
sketch13.setExpression("Constraints[8]", "Params.sketch13_height")
groove4 = body.newObject("PartDesign::Groove", "Groove003")
groove4.Profile = sketch13
groove4.ReferenceAxis = (sketch13, ["Axis0"])
groove4.setExpression("Angle", "Params.groove4_angle")

# Sketch on XZ plane
sketch14 = body.newObject("Sketcher::SketchObject", "Sketch013")
sketch14.AttachmentSupport = (doc.getObject("XZ_Plane"), [""])
sketch14.MapMode = "FlatFace"
add_polygon(sketch14, [(1.5375, 7.3), (2.7, 7.3), (2.7, 4.2)])  # lines 0-2
sketch14.addConstraint([
    Sketcher.Constraint("Horizontal", 0),
    Sketcher.Constraint("Vertical", 1),
    Sketcher.Constraint("DistanceY", 1, 2, 1, 1, 3.1),
    Sketcher.Constraint("DistanceX", -1, 1, 0, 2, 2.7),
    Sketcher.Constraint("DistanceY", -1, 1, 0, 2, 7.3),
    Sketcher.Constraint("DistanceX", 0, 1, 0, 2, 1.1625),
])
sketch14.setExpression("Constraints[5]", "Params.sketch14_height")
groove5 = body.newObject("PartDesign::Groove", "Groove004")
groove5.Profile = sketch14
groove5.ReferenceAxis = (sketch14, ["V_Axis"])
groove5.setExpression("Angle", "Params.groove5_angle")

# Sketch on XZ plane
sketch15 = body.newObject("Sketcher::SketchObject", "Sketch014")
sketch15.AttachmentSupport = (doc.getObject("XZ_Plane"), [""])
sketch15.MapMode = "FlatFace"
add_polygon(sketch15, [(21.7875, 7.3), (22.95, 7.3), (22.95, 4.2)])  # lines 0-2
sketch15.addGeometry(Part.LineSegment(App.Vector(20.25, 7.3, 0), App.Vector(20.25, 4.2, 0)), True)  # axis
sketch15.addConstraint([
    Sketcher.Constraint("Horizontal", 0),
    Sketcher.Constraint("Vertical", 1),
    Sketcher.Constraint("Vertical", 3),
    Sketcher.Constraint("Horizontal", 2, 2, 3, 1),
    Sketcher.Constraint("Horizontal", 1, 2, 3, 2),
    Sketcher.Constraint("DistanceY", 1, 2, 1, 1, 3.1),
    Sketcher.Constraint("DistanceY", -1, 1, 0, 2, 7.3),
    Sketcher.Constraint("DistanceX", 3, 1, 0, 2, 2.7),
    Sketcher.Constraint("DistanceX", -1, 1, 0, 2, 22.95),
    Sketcher.Constraint("DistanceX", 0, 1, 0, 2, 1.1625),
])
sketch15.setExpression("Constraints[8]", "Params.sketch15_height")
groove6 = body.newObject("PartDesign::Groove", "Groove005")
groove6.Profile = sketch15
groove6.ReferenceAxis = (sketch15, ["Axis0"])
groove6.setExpression("Angle", "Params.groove6_angle")

# Sketch on XZ plane
sketch16 = body.newObject("Sketcher::SketchObject", "Sketch015")
sketch16.AttachmentSupport = (doc.getObject("XZ_Plane"), [""])
sketch16.MapMode = "FlatFace"
add_polygon(sketch16, [(-20.25, -1), (-20.25, 7), (-19.5, 7), (-19.5, -1)])  # lines 0-3
sketch16.addGeometry(Part.LineSegment(App.Vector(-20.25, 7, 0), App.Vector(-20.25, -1, 0)), True)  # axis
sketch16.addConstraint([
    Sketcher.Constraint("Vertical", 0),
    Sketcher.Constraint("Horizontal", 1),
    Sketcher.Constraint("Vertical", 2),
    Sketcher.Constraint("Horizontal", 3),
    Sketcher.Constraint("Vertical", 4),
    Sketcher.Constraint("Coincident", 4, 1, 0, 2),
    Sketcher.Constraint("Horizontal", 2, 2, 4, 2),
    Sketcher.Constraint("DistanceY", 0, 1, 0, 2, 8.0),
    Sketcher.Constraint("DistanceY", -1, 1, 0, 2, 7.0),
    Sketcher.Constraint("DistanceX", 1, 1, 1, 2, 0.75),
    Sketcher.Constraint("DistanceX", 1, 2, -1, 1, 19.5),
])
sketch16.setExpression("Constraints[11]", "Params.sketch16_height")
sketch16.setExpression("Constraints[13]", "Params.sketch16_width")
groove7 = body.newObject("PartDesign::Groove", "Groove006")
groove7.Profile = sketch16
groove7.ReferenceAxis = (sketch16, ["Axis0"])
groove7.setExpression("Angle", "Params.groove7_angle")

# Sketch on XZ plane
sketch17 = body.newObject("Sketcher::SketchObject", "Sketch016")
sketch17.AttachmentSupport = (doc.getObject("XZ_Plane"), [""])
sketch17.MapMode = "FlatFace"
add_polygon(sketch17, [(0, -1), (0, 7), (0.75, 7), (0.75, -1)])  # lines 0-3
sketch17.addConstraint([
    Sketcher.Constraint("Vertical", 0),
    Sketcher.Constraint("Horizontal", 1),
    Sketcher.Constraint("Vertical", 2),
    Sketcher.Constraint("Horizontal", 3),
    Sketcher.Constraint("PointOnObject", 0, 2, -2),
    Sketcher.Constraint("DistanceY", 0, 1, 0, 2, 8.0),
    Sketcher.Constraint("DistanceY", -1, 1, 0, 2, 7.0),
    Sketcher.Constraint("DistanceX", 1, 1, 1, 2, 0.75),
])
sketch17.setExpression("Constraints[9]", "Params.sketch17_height")
sketch17.setExpression("Constraints[11]", "Params.sketch17_width")
groove8 = body.newObject("PartDesign::Groove", "Groove007")
groove8.Profile = sketch17
groove8.ReferenceAxis = (sketch17, ["V_Axis"])
groove8.setExpression("Angle", "Params.groove8_angle")

# Sketch on XZ plane
sketch18 = body.newObject("Sketcher::SketchObject", "Sketch017")
sketch18.AttachmentSupport = (doc.getObject("XZ_Plane"), [""])
sketch18.MapMode = "FlatFace"
add_polygon(sketch18, [(20.25, -1), (20.25, 7), (21, 7), (21, -1)])  # lines 0-3
sketch18.addGeometry(Part.LineSegment(App.Vector(20.25, 7, 0), App.Vector(20.25, -1, 0)), True)  # axis
sketch18.addConstraint([
    Sketcher.Constraint("Vertical", 0),
    Sketcher.Constraint("Horizontal", 1),
    Sketcher.Constraint("Vertical", 2),
    Sketcher.Constraint("Horizontal", 3),
    Sketcher.Constraint("Vertical", 4),
    Sketcher.Constraint("Coincident", 4, 1, 0, 2),
    Sketcher.Constraint("Horizontal", 2, 2, 4, 2),
    Sketcher.Constraint("DistanceY", 0, 1, 0, 2, 8.0),
    Sketcher.Constraint("DistanceY", -1, 1, 0, 2, 7.0),
    Sketcher.Constraint("DistanceX", -1, 1, 1, 2, 21.0),
    Sketcher.Constraint("DistanceX", 1, 1, 1, 2, 0.75),
])
sketch18.setExpression("Constraints[11]", "Params.sketch18_height")
sketch18.setExpression("Constraints[14]", "Params.sketch18_width")
groove9 = body.newObject("PartDesign::Groove", "Groove008")
groove9.Profile = sketch18
groove9.ReferenceAxis = (sketch18, ["Axis0"])
groove9.setExpression("Angle", "Params.groove9_angle")

doc.recompute()
